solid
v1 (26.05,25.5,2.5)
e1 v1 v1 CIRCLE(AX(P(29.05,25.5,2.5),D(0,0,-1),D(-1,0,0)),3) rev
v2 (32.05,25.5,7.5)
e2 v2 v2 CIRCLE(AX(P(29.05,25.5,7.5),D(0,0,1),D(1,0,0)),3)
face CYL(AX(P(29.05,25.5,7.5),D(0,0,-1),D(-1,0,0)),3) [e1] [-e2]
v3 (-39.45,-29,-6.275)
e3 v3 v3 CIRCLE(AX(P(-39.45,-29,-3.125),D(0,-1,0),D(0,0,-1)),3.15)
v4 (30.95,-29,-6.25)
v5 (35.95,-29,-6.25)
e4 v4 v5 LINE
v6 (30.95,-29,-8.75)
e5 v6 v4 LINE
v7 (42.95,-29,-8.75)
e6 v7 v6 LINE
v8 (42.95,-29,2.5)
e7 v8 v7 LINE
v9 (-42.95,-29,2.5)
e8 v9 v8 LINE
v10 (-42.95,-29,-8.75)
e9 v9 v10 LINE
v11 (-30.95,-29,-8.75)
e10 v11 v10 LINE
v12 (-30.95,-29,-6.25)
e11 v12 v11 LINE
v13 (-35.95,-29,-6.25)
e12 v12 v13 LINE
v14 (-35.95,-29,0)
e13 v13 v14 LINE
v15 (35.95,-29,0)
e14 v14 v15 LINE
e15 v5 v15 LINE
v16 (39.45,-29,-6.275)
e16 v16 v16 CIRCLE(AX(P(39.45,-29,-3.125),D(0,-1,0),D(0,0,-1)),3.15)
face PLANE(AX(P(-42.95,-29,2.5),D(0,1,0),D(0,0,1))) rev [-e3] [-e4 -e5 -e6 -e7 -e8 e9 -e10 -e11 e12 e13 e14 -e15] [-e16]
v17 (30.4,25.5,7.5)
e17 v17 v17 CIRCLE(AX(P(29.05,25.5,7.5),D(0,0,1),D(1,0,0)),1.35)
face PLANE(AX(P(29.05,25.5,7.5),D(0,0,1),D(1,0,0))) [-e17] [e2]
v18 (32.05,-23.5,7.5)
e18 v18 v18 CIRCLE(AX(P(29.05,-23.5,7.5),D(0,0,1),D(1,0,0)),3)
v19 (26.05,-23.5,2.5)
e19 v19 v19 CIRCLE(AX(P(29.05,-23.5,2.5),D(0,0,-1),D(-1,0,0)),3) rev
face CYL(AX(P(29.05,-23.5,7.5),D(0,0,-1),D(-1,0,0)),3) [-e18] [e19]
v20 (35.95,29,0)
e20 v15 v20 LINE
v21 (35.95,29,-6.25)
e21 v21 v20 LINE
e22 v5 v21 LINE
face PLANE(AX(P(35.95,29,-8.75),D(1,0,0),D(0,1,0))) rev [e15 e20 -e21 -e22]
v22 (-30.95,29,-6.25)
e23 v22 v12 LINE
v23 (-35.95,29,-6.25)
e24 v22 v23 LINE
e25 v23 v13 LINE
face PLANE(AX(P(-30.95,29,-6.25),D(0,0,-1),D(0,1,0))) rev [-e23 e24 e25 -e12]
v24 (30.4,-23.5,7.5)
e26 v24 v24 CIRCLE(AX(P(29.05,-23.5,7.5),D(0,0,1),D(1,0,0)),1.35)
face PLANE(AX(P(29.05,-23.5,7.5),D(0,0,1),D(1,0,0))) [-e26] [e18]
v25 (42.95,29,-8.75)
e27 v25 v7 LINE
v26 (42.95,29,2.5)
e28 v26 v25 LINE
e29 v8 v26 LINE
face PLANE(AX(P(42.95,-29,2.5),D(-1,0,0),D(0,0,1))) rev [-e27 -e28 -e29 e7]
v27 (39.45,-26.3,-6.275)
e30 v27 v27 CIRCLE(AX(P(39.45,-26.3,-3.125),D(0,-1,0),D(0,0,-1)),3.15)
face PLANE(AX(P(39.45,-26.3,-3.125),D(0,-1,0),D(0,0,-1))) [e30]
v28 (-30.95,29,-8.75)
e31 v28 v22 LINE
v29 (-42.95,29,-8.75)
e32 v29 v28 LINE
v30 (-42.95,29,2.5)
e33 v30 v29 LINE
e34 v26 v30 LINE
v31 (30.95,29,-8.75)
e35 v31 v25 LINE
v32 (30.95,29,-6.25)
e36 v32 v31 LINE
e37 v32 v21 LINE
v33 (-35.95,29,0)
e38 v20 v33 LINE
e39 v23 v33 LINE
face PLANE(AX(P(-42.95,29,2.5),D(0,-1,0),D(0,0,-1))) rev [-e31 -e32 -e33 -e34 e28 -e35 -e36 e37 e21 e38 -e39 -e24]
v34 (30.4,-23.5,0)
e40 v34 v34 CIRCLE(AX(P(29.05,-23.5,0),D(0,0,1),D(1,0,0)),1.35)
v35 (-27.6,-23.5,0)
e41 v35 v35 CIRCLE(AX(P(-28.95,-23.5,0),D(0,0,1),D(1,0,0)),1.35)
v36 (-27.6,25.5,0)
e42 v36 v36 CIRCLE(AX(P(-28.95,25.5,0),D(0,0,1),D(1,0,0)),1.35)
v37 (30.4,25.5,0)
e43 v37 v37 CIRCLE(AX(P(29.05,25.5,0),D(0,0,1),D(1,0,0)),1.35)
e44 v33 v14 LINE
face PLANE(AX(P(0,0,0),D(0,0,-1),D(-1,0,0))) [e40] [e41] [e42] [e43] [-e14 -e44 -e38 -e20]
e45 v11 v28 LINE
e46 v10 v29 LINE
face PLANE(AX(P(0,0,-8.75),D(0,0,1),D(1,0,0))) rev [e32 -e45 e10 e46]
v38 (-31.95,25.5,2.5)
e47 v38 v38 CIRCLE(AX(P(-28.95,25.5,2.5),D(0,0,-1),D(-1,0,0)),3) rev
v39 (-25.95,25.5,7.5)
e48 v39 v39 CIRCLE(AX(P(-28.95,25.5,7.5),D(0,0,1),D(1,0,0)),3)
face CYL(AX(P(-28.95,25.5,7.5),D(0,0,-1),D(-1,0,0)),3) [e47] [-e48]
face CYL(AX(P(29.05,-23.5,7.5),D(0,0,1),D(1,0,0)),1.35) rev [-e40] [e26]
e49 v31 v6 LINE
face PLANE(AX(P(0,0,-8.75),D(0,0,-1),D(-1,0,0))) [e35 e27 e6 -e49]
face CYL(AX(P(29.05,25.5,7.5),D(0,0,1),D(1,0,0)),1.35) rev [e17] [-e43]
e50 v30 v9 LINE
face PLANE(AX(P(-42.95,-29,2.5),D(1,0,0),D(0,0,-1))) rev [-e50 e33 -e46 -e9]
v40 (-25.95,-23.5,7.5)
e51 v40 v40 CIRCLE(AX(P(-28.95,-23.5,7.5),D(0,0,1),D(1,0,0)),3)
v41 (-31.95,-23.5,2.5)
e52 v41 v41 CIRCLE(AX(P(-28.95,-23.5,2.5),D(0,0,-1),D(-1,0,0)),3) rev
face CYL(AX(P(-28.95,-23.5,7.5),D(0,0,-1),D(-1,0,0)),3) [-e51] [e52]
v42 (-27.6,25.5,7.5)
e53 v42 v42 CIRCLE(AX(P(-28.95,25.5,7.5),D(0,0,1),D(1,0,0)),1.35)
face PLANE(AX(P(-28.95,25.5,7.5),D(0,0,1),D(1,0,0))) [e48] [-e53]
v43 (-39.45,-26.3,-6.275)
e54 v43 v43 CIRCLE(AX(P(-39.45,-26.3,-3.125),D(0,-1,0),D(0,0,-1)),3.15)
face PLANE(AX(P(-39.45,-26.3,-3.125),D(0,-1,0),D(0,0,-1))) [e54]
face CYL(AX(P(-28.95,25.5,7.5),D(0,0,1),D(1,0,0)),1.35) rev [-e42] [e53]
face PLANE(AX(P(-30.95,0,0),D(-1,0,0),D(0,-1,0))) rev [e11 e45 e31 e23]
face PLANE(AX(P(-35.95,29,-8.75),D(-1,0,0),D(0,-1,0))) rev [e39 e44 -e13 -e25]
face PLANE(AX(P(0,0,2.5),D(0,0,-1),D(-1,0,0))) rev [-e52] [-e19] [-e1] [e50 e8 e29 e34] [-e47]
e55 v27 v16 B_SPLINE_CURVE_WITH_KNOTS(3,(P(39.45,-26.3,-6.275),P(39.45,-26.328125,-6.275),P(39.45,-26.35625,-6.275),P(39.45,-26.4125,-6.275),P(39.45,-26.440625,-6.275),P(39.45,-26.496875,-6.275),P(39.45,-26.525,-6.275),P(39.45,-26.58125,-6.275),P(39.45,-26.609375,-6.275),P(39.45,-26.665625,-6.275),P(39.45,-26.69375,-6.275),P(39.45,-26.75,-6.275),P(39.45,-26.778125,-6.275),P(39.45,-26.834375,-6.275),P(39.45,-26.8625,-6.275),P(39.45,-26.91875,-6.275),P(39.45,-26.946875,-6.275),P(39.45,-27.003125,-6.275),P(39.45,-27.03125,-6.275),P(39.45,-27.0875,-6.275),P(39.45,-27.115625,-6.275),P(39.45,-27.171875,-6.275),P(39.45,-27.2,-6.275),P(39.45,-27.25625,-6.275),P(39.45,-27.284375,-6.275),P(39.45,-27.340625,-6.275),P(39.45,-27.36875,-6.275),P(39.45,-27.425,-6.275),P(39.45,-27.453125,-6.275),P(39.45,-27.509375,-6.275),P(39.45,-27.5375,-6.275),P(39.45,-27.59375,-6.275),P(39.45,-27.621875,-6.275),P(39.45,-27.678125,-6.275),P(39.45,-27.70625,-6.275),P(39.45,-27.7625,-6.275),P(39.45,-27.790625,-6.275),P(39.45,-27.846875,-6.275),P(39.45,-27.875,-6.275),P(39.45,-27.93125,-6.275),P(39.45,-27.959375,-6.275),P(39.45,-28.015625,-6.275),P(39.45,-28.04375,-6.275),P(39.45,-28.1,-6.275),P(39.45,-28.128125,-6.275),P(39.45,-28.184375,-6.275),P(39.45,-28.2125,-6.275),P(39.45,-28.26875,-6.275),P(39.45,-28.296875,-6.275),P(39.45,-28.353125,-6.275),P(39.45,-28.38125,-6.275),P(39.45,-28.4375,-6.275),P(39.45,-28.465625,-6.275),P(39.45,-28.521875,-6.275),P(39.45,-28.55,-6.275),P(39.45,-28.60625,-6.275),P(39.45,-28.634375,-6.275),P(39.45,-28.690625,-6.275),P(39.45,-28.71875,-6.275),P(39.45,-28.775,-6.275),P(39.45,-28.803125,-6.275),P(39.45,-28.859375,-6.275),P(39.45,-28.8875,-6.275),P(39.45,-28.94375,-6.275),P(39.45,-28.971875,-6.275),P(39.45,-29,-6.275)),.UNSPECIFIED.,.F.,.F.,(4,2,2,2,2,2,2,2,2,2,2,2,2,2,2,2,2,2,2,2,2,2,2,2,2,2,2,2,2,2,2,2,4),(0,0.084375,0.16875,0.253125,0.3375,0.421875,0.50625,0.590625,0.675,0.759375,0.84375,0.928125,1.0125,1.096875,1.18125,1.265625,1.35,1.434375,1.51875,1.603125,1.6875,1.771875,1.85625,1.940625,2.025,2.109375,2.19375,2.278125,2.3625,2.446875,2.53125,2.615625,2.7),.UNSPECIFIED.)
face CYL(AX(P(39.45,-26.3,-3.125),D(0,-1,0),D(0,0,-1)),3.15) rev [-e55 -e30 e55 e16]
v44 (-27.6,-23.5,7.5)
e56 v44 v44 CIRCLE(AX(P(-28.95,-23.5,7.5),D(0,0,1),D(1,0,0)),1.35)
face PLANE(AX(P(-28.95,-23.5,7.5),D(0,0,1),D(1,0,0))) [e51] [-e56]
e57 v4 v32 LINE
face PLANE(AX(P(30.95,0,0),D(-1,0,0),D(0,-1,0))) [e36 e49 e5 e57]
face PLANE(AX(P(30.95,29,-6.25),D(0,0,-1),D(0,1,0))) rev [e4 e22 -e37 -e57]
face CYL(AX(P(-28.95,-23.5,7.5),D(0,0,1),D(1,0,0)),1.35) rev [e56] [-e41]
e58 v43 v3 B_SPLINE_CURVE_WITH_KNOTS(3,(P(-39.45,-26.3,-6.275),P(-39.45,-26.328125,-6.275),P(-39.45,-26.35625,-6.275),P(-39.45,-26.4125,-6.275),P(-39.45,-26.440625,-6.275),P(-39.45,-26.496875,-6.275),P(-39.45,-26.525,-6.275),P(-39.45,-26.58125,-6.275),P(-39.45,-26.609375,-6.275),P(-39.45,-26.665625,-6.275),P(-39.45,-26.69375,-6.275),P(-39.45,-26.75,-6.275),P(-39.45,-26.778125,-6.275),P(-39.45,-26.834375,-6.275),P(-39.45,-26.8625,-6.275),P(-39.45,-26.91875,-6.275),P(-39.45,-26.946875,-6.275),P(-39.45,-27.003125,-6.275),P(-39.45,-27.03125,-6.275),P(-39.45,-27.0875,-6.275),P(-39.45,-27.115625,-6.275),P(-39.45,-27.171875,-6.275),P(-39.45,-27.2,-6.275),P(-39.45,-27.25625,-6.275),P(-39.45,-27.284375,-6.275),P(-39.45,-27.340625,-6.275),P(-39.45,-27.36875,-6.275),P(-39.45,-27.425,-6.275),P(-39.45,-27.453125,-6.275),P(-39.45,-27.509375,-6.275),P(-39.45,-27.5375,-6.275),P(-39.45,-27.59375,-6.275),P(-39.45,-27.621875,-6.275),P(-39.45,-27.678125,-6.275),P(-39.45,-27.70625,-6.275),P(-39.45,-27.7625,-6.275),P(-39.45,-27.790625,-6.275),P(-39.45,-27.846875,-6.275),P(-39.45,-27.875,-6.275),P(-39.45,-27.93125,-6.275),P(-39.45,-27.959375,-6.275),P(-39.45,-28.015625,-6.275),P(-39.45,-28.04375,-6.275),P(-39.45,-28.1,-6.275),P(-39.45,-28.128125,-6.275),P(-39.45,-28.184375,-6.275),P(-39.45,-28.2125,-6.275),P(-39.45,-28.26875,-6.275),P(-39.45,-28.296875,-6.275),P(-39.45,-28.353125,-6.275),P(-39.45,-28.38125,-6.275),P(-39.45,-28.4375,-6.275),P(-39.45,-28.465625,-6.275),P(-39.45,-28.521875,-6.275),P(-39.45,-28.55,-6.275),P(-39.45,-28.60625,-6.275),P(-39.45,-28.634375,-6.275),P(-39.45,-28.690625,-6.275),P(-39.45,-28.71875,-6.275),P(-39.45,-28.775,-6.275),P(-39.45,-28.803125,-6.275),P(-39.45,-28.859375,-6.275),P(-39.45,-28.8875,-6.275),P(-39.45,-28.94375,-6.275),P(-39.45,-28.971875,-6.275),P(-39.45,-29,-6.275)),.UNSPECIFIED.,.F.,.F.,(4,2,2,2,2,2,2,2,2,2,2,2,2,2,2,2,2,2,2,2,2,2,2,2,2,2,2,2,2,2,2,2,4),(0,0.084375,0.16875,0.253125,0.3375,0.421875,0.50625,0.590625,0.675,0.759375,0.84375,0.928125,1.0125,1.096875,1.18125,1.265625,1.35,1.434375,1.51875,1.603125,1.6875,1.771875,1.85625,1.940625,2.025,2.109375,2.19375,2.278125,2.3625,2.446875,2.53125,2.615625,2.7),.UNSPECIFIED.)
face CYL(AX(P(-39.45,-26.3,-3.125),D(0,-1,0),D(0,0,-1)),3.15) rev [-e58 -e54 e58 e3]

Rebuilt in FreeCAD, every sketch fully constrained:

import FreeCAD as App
import Part
import Sketcher


def add_polygon(sketch, points):
    """Adds a closed chain of lines whose ends are joined by coincident constraints."""
    first, n = sketch.GeometryCount, len(points)
    for a, b in zip(points, points[1:] + points[:1]):
        sketch.addGeometry(Part.LineSegment(App.Vector(*a, 0), App.Vector(*b, 0)), False)
    for i in range(n):
        sketch.addConstraint(Sketcher.Constraint("Coincident", first + i, 2, first + (i + 1) % n, 1))

doc = App.newDocument("Part")
body = doc.addObject("PartDesign::Body", "Body")

# Sketch on XY plane
sketch1 = doc.addObject("Sketcher::SketchObject", "Sketch")
body.addObject(sketch1)
sketch1.AttachmentSupport = (doc.XY_Plane, [""])
sketch1.MapMode = "FlatFace"
add_polygon(sketch1, [(-43, 29), (-43, -29), (43, -29), (43, 29)])  # lines 0-3
sketch1.addConstraint(Sketcher.Constraint("Vertical", 0))
sketch1.addConstraint(Sketcher.Constraint("Horizontal", 1))
sketch1.addConstraint(Sketcher.Constraint("Vertical", 2))
sketch1.addConstraint(Sketcher.Constraint("Horizontal", 3))
sketch1.addConstraint(Sketcher.Constraint("Symmetric", 0, 2, 2, 2, -1, 1))
sketch1.addConstraint(Sketcher.Constraint("DistanceY", 0, 2, 0, 1, 58.0))
sketch1.addConstraint(Sketcher.Constraint("DistanceX", 1, 1, 1, 2, 85.9))
pad1 = doc.addObject("PartDesign::Pad", "Pad")
body.addObject(pad1)
pad1.Profile = sketch1
pad1.Length = 2.5

# Sketch on XY plane
sketch2 = doc.addObject("Sketcher::SketchObject", "Sketch001")
body.addObject(sketch2)
sketch2.AttachmentSupport = (doc.XY_Plane, [""])
sketch2.MapMode = "FlatFace"
sketch2.AttachmentOffset = App.Placement(App.Vector(0, 0, 2.5), App.Rotation())
sketch2.addGeometry(Part.Circle(App.Vector(-28.9, 25.5, 0), App.Vector(0, 0, 1), 3), False)
sketch2.addGeometry(Part.Circle(App.Vector(29.1, 25.5, 0), App.Vector(0, 0, 1), 3), False)
sketch2.addConstraint(Sketcher.Constraint("Equal", 0, 1))
sketch2.addConstraint(Sketcher.Constraint("Horizontal", 0, 3, 1, 3))
sketch2.addConstraint(Sketcher.Constraint("Diameter", 0, 6.0))
sketch2.addConstraint(Sketcher.Constraint("DistanceX", 0, 3, 1, 3, 58.0))
sketch2.addConstraint(Sketcher.Constraint("DistanceY", -1, 1, 0, 3, 25.5))
sketch2.addConstraint(Sketcher.Constraint("DistanceX", 0, 3, -1, 1, 28.95))
pad2 = doc.addObject("PartDesign::Pad", "Pad001")
body.addObject(pad2)
pad2.Profile = sketch2
pad2.Length = 5
doc.recompute()

linearpattern = doc.addObject("PartDesign::LinearPattern", "LinearPattern")
body.addObject(linearpattern)
linearpattern.Originals = [pad2]
linearpattern.Direction = (doc.Y_Axis, [""])
linearpattern.Mode = "offset"
linearpattern.Offset = 49
linearpattern.Occurrences = 2
linearpattern.Reversed = True
body.Tip = linearpattern

# Sketch on XY plane
sketch3 = doc.addObject("Sketcher::SketchObject", "Sketch002")
body.addObject(sketch3)
sketch3.AttachmentSupport = (doc.XY_Plane, [""])
sketch3.MapMode = "FlatFace"
sketch3.AttachmentOffset = App.Placement(App.Vector(0, 0, 7.5), App.Rotation())
sketch3.addGeometry(Part.Circle(App.Vector(-28.9, 25.5, 0), App.Vector(0, 0, 1), 1.4), False)
sketch3.addGeometry(Part.Circle(App.Vector(-28.9, -23.5, 0), App.Vector(0, 0, 1), 1.4), False)
sketch3.addGeometry(Part.Circle(App.Vector(29.1, 25.5, 0), App.Vector(0, 0, 1), 1.4), False)
sketch3.addGeometry(Part.Circle(App.Vector(29.1, -23.5, 0), App.Vector(0, 0, 1), 1.4), False)
sketch3.addConstraint(Sketcher.Constraint("Equal", 0, 1))
sketch3.addConstraint(Sketcher.Constraint("Equal", 1, 2))
sketch3.addConstraint(Sketcher.Constraint("Equal", 2, 3))
sketch3.addConstraint(Sketcher.Constraint("Horizontal", 0, 3, 2, 3))
sketch3.addConstraint(Sketcher.Constraint("Horizontal", 1, 3, 3, 3))
sketch3.addConstraint(Sketcher.Constraint("Vertical", 0, 3, 1, 3))
sketch3.addConstraint(Sketcher.Constraint("Vertical", 2, 3, 3, 3))
sketch3.addConstraint(Sketcher.Constraint("Diameter", 0, 2.7))
sketch3.addConstraint(Sketcher.Constraint("DistanceY", 1, 3, 0, 3, 49.0))
sketch3.addConstraint(Sketcher.Constraint("DistanceX", 0, 3, 2, 3, 58.0))
sketch3.addConstraint(Sketcher.Constraint("DistanceY", -1, 1, 0, 3, 25.5))
sketch3.addConstraint(Sketcher.Constraint("DistanceX", 0, 3, -1, 1, 28.95))
doc.recompute()
hole = doc.addObject("PartDesign::Hole", "Hole")
body.addObject(hole)
hole.Profile = sketch3
hole.ThreadType = "None"
hole.Diameter = 2.7
hole.DepthType = "ThroughAll"

# Sketch on XY plane
sketch4 = doc.addObject("Sketcher::SketchObject", "Sketch003")
body.addObject(sketch4)
sketch4.AttachmentSupport = (doc.XY_Plane, [""])
sketch4.MapMode = "FlatFace"
add_polygon(sketch4, [(43, 29), (43, -29), (36, -29), (36, 29)])  # lines 0-3
add_polygon(sketch4, [(-36, 29), (-36, -29), (-43, -29), (-43, 29)])  # lines 4-7
sketch4.addConstraint(Sketcher.Constraint("Vertical", 0))
sketch4.addConstraint(Sketcher.Constraint("Horizontal", 1))
sketch4.addConstraint(Sketcher.Constraint("Vertical", 2))
sketch4.addConstraint(Sketcher.Constraint("Horizontal", 3))
sketch4.addConstraint(Sketcher.Constraint("Vertical", 4))
sketch4.addConstraint(Sketcher.Constraint("Horizontal", 5))
sketch4.addConstraint(Sketcher.Constraint("Vertical", 6))
sketch4.addConstraint(Sketcher.Constraint("Horizontal", 7))
sketch4.addConstraint(Sketcher.Constraint("Symmetric", 2, 2, 4, 2, -1, 1))
sketch4.addConstraint(Sketcher.Constraint("Symmetric", 0, 2, 6, 2, -1, 1))
sketch4.addConstraint(Sketcher.Constraint("Horizontal", 1, 2, 4, 2))
sketch4.addConstraint(Sketcher.Constraint("DistanceX", 1, 2, 1, 1, 7.0))
sketch4.addConstraint(Sketcher.Constraint("DistanceY", 0, 2, 0, 1, 58.0))
sketch4.addConstraint(Sketcher.Constraint("DistanceX", 4, 2, 1, 2, 71.9))
pad3 = doc.addObject("PartDesign::Pad", "Pad002")
body.addObject(pad3)
pad3.Profile = sketch4
pad3.Length = 8.75
pad3.Reversed = True

# Sketch on YZ plane
sketch5 = doc.addObject("Sketcher::SketchObject", "Sketch004")
body.addObject(sketch5)
sketch5.AttachmentSupport = (doc.YZ_Plane, [""])
sketch5.MapMode = "FlatFace"
sketch5.AttachmentOffset = App.Placement(App.Vector(0, 0, 35.95), App.Rotation())
add_polygon(sketch5, [(29, -8.8), (-29, -8.8), (-29, -6.2), (29, -6.2)])  # lines 0-3
sketch5.addConstraint(Sketcher.Constraint("Horizontal", 0))
sketch5.addConstraint(Sketcher.Constraint("Vertical", 1))
sketch5.addConstraint(Sketcher.Constraint("Horizontal", 2))
sketch5.addConstraint(Sketcher.Constraint("Vertical", 3))
sketch5.addConstraint(Sketcher.Constraint("DistanceX", 0, 2, 0, 1, 58.0))
sketch5.addConstraint(Sketcher.Constraint("DistanceY", 1, 1, 1, 2, 2.5))
sketch5.addConstraint(Sketcher.Constraint("DistanceX", 0, 2, -1, 1, 29.0))
sketch5.addConstraint(Sketcher.Constraint("DistanceY", 0, 2, -1, 1, 8.75))
pad4 = doc.addObject("PartDesign::Pad", "Pad003")
body.addObject(pad4)
pad4.Profile = sketch5
pad4.Length = 5
pad4.Reversed = True

# Sketch on YZ plane
sketch6 = doc.addObject("Sketcher::SketchObject", "Sketch005")
body.addObject(sketch6)
sketch6.AttachmentSupport = (doc.YZ_Plane, [""])
sketch6.MapMode = "FlatFace"
sketch6.AttachmentOffset = App.Placement(App.Vector(0, 0, -35.95), App.Rotation())
add_polygon(sketch6, [(29, -6.2), (-29, -6.2), (-29, -8.8), (29, -8.8)])  # lines 0-3
sketch6.addConstraint(Sketcher.Constraint("Horizontal", 0))
sketch6.addConstraint(Sketcher.Constraint("Vertical", 1))
sketch6.addConstraint(Sketcher.Constraint("Horizontal", 2))
sketch6.addConstraint(Sketcher.Constraint("Vertical", 3))
sketch6.addConstraint(Sketcher.Constraint("DistanceX", 0, 2, 0, 1, 58.0))
sketch6.addConstraint(Sketcher.Constraint("DistanceY", 1, 2, 1, 1, 2.5))
sketch6.addConstraint(Sketcher.Constraint("DistanceX", 0, 2, -1, 1, 29.0))
sketch6.addConstraint(Sketcher.Constraint("DistanceY", 0, 2, -1, 1, 6.25))
pad5 = doc.addObject("PartDesign::Pad", "Pad004")
body.addObject(pad5)
pad5.Profile = sketch6
pad5.Length = 5

# Sketch on XZ plane
sketch7 = doc.addObject("Sketcher::SketchObject", "Sketch006")
body.addObject(sketch7)
sketch7.AttachmentSupport = (doc.XZ_Plane, [""])
sketch7.MapMode = "FlatFace"
sketch7.AttachmentOffset = App.Placement(App.Vector(0, 0, 29), App.Rotation())
sketch7.addGeometry(Part.Circle(App.Vector(-39.5, -3.1, 0), App.Vector(0, 0, 1), 3.1), False)
sketch7.addGeometry(Part.Circle(App.Vector(39.5, -3.1, 0), App.Vector(0, 0, 1), 3.1), False)
sketch7.addConstraint(Sketcher.Constraint("Equal", 0, 1))
sketch7.addConstraint(Sketcher.Constraint("Symmetric", 0, 3, 1, 3, -2))
sketch7.addConstraint(Sketcher.Constraint("Diameter", 0, 6.3))
sketch7.addConstraint(Sketcher.Constraint("DistanceX", 0, 3, 1, 3, 78.9))
sketch7.addConstraint(Sketcher.Constraint("DistanceY", 0, 3, -1, 1, 3.125))
pocket1 = doc.addObject("PartDesign::Pocket", "Pocket")
body.addObject(pocket1)
pocket1.Profile = sketch7
pocket1.Length = 2.7

doc.recompute()
